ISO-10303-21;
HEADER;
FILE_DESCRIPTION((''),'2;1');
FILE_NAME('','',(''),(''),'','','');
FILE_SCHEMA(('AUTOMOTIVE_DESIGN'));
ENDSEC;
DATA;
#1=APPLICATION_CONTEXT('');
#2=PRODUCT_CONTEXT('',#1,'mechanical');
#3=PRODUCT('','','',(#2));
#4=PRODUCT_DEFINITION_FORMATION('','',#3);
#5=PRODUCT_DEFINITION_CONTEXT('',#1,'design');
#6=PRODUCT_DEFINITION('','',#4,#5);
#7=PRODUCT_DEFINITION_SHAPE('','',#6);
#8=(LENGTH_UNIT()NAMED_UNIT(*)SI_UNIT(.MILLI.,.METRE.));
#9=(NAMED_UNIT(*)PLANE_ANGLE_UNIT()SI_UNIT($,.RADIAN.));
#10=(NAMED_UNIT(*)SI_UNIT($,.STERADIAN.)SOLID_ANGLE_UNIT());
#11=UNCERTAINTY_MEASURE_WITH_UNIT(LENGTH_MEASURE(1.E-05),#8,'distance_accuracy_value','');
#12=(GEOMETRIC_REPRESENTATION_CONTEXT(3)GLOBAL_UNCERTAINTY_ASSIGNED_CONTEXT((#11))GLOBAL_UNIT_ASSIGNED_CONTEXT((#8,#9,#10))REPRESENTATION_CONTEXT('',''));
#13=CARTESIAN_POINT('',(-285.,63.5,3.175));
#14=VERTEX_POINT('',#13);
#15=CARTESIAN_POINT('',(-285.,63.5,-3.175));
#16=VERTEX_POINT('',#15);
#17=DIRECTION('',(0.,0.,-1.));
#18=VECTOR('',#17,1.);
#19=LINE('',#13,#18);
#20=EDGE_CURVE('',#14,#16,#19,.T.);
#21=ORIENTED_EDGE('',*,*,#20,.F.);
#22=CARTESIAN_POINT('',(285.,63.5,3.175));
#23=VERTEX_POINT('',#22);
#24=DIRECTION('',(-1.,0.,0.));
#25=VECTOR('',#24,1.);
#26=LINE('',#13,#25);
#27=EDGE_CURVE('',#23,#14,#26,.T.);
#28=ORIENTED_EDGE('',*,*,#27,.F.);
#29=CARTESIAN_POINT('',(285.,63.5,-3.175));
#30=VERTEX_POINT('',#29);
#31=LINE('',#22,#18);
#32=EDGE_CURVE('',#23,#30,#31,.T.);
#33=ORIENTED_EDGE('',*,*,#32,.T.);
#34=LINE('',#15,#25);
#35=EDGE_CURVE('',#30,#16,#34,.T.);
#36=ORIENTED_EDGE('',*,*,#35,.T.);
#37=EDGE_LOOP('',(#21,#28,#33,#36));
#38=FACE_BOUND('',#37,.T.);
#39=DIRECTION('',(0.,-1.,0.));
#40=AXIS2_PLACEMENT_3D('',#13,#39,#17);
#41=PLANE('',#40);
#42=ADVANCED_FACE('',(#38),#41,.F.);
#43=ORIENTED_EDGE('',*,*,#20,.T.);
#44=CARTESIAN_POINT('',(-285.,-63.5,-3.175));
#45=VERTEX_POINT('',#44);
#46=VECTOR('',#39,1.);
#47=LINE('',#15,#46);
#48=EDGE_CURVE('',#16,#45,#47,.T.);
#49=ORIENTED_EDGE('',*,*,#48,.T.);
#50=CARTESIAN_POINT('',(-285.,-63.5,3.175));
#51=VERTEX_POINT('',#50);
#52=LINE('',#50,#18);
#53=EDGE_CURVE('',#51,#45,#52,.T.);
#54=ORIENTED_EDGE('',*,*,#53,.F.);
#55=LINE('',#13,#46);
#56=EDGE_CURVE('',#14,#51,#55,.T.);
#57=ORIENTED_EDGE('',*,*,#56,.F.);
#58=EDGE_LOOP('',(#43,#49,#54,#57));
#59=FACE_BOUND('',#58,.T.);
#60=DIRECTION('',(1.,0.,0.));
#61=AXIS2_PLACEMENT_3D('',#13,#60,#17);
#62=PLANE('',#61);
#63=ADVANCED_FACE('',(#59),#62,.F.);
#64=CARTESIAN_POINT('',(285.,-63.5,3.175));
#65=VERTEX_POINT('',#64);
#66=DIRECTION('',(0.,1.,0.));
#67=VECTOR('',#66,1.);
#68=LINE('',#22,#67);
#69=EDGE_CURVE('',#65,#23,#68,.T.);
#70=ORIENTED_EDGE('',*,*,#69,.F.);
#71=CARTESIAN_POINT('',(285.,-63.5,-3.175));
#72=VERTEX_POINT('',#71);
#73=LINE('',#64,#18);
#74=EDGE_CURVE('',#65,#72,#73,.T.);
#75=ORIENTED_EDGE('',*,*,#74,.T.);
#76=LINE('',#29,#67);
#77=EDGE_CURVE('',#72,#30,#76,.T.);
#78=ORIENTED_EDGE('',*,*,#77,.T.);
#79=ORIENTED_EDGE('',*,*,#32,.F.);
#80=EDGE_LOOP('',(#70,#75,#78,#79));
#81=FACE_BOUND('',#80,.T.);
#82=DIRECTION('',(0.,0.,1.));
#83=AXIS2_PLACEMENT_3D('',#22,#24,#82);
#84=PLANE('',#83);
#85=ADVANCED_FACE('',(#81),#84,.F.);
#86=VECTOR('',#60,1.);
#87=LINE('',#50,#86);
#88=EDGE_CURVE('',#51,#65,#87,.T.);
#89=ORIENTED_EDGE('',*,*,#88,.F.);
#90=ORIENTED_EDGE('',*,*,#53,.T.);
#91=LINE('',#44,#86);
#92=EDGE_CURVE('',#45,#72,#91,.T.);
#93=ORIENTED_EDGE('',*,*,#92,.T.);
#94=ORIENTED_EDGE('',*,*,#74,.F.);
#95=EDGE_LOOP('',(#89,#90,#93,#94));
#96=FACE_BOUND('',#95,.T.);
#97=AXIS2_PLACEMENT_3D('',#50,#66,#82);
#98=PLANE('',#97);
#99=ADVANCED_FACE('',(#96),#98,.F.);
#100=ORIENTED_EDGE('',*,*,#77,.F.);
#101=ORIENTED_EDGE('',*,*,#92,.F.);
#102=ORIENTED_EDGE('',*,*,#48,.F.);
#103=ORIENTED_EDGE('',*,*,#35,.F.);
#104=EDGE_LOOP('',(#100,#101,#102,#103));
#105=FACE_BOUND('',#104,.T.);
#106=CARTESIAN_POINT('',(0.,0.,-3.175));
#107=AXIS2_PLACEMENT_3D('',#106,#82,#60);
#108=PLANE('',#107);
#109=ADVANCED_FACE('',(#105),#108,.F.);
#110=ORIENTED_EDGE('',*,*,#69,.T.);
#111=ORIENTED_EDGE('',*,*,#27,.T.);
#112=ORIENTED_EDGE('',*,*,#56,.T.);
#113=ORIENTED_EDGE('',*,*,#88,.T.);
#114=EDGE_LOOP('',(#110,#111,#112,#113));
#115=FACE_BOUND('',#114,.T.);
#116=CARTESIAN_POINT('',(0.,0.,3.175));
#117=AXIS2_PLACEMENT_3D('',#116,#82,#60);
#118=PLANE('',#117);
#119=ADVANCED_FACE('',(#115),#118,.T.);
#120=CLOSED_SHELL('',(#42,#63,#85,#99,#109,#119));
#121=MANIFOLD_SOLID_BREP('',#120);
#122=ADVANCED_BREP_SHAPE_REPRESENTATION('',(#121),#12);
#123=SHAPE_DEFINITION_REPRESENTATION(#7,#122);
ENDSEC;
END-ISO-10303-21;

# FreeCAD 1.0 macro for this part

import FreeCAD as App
import Part
import Sketcher
from FreeCAD import Vector
Q = App.Units.Quantity


def add_polygon(sketch, points):
    """Adds a closed chain of lines whose ends are joined by coincident constraints."""
    first, n = sketch.GeometryCount, len(points)
    for a, b in zip(points, points[1:] + points[:1]):
        sketch.addGeometry(Part.LineSegment(App.Vector(*a, 0), App.Vector(*b, 0)), False)
    for i in range(n):
        sketch.addConstraint(Sketcher.Constraint("Coincident", first + i, 2, first + (i + 1) % n, 1))

doc = App.newDocument("Part")
params = doc.addObject("Spreadsheet::Sheet", "Params")
for row, (alias, value) in enumerate([
    ("sketch1_height", "5 in"),
    ("pad1_length", "0.25 in"),
], start=1):
    params.set(f"A{row}", alias)
    params.set(f"B{row}", "=" + value)
    params.setAlias(f"B{row}", alias)

body = doc.addObject("PartDesign::Body", "Body")

sketch1 = body.newObject("Sketcher::SketchObject", "Sketch")
sketch1.AttachmentSupport = (doc.getObject("XY_Plane"), [""])
sketch1.MapMode = "FlatFace"
add_polygon(sketch1, [(-285, 63.5), (-285, -63.5), (285, -63.5), (285, 63.5)])
sketch1.addConstraint(Sketcher.Constraint("Vertical", 0))
sketch1.addConstraint(Sketcher.Constraint("Horizontal", 1))
sketch1.addConstraint(Sketcher.Constraint("Vertical", 2))
sketch1.addConstraint(Sketcher.Constraint("Horizontal", 3))
sketch1.addConstraint(Sketcher.Constraint("Symmetric", 0, 2, 2, 2, -1, 1))
sketch1.addConstraint(Sketcher.Constraint("DistanceY", 0, 2, 0, 1, Q("5 in")))
sketch1.addConstraint(Sketcher.Constraint("DistanceX", 1, 1, 1, 2, Q("570 mm")))
sketch1.setExpression("Constraints[9]", "Params.sketch1_height")
pad1 = body.newObject("PartDesign::Pad", "Pad")
pad1.Profile = sketch1
pad1.setExpression("Length", "Params.pad1_length")
pad1.Midplane = True

doc.recompute()
